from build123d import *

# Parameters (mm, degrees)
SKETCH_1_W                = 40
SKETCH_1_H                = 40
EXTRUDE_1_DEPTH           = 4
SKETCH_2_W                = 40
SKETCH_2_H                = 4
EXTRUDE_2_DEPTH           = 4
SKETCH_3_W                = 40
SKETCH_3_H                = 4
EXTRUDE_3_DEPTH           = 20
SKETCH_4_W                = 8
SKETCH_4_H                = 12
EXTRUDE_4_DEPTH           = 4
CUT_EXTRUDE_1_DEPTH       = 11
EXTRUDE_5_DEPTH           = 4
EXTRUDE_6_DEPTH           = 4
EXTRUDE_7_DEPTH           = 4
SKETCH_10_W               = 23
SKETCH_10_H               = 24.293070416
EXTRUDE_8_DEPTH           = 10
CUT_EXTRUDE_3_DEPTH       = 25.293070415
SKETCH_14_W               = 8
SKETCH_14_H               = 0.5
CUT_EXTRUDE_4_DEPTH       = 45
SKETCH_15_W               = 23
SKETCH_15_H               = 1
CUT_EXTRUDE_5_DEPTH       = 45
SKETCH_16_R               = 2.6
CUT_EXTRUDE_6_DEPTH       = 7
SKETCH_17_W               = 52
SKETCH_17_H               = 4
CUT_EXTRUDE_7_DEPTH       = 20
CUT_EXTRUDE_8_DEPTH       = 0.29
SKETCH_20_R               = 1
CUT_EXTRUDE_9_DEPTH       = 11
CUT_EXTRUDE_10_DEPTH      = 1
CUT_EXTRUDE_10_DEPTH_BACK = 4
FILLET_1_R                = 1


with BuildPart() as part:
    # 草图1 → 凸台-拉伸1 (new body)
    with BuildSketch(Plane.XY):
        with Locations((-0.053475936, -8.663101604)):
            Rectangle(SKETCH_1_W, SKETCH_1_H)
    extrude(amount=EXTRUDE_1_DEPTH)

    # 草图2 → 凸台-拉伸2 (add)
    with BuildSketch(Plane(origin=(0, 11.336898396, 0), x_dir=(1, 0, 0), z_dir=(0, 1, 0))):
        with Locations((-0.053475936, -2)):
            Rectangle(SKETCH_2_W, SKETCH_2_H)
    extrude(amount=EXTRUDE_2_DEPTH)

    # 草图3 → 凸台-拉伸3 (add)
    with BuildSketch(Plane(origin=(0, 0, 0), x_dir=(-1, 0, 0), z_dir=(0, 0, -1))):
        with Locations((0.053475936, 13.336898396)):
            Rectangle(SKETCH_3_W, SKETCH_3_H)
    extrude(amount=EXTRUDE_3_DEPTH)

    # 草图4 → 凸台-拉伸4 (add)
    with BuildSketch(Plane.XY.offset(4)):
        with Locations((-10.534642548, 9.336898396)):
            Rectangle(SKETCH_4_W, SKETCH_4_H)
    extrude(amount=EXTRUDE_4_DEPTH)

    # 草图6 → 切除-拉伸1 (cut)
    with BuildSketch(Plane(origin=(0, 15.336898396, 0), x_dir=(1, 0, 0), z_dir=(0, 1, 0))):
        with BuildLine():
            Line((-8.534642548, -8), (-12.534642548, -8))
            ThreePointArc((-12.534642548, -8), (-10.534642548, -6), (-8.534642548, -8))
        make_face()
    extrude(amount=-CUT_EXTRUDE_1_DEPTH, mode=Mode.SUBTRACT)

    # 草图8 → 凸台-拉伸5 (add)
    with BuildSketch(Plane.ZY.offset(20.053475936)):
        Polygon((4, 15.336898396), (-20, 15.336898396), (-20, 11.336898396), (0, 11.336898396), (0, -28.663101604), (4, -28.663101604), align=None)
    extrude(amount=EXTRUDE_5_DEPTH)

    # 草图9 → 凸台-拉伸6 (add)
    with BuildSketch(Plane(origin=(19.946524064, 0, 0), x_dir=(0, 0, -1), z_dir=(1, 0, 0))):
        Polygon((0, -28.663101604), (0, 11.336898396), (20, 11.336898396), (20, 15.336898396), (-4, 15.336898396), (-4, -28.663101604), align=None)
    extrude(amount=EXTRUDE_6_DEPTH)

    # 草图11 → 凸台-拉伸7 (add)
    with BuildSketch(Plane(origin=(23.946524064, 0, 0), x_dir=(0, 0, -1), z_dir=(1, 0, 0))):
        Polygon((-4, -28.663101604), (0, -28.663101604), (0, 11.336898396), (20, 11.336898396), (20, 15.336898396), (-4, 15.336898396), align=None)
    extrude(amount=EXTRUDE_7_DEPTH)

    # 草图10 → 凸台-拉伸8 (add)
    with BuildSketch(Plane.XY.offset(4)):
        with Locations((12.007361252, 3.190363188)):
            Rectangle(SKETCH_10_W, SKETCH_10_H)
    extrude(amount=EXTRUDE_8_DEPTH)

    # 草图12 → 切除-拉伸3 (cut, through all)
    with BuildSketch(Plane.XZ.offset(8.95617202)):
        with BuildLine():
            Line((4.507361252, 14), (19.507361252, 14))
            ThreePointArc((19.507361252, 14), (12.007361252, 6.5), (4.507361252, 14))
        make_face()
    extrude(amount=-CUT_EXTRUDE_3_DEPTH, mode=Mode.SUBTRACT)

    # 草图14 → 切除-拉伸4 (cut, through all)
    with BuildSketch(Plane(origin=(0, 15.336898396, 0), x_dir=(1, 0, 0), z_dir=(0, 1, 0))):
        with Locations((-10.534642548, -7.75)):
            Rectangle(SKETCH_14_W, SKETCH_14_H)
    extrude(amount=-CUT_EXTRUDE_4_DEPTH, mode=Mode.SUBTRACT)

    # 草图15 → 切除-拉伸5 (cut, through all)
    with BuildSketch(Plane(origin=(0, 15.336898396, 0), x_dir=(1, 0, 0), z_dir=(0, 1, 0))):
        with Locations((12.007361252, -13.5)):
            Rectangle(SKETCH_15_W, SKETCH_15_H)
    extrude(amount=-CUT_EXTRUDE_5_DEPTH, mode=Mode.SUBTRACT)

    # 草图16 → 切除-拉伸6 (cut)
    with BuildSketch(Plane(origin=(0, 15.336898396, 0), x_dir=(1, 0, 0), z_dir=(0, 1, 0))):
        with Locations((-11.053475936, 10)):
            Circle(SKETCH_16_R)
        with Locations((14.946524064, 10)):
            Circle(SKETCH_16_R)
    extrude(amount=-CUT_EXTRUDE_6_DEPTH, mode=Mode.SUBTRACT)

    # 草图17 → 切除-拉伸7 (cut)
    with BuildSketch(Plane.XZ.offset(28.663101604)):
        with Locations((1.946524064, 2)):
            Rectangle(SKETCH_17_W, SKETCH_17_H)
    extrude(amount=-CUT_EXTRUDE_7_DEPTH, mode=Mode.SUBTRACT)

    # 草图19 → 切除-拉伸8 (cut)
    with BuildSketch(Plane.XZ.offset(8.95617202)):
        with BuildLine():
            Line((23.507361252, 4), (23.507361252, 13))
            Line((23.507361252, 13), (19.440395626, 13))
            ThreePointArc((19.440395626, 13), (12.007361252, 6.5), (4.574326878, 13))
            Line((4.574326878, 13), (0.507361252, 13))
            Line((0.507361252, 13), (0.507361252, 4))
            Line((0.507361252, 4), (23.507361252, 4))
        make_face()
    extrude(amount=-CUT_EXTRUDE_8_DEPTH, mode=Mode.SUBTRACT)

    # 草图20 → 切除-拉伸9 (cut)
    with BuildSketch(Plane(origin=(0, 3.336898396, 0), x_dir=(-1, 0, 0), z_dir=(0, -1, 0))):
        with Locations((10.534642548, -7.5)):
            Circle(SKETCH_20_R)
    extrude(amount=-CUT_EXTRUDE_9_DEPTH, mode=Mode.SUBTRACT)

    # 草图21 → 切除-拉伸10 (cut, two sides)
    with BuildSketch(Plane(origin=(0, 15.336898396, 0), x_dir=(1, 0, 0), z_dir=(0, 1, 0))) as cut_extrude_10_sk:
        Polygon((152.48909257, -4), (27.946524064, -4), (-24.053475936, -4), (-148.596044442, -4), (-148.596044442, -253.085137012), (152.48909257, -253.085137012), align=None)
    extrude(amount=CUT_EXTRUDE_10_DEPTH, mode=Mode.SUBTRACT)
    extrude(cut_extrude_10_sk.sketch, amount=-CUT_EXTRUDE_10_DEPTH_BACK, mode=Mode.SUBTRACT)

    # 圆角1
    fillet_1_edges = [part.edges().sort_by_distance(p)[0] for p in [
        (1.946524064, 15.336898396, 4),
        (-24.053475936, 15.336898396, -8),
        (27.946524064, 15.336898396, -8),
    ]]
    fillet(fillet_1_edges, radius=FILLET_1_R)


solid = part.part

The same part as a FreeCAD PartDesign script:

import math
import FreeCAD as App
import Part
import Sketcher
from FreeCAD import Vector


def edges_at(feature, points):
    """Names of the edges that pass closest to the given points."""
    edges = feature.Shape.Edges
    near = lambda p: min(range(len(edges)), key=lambda i: edges[i].distToShape(Part.Vertex(*p))[0])
    return sorted({f"Edge{near(p) + 1}" for p in points})


def add_polygon(sketch, points):
    """Adds a closed chain of lines whose ends are joined by coincident constraints."""
    first, n = sketch.GeometryCount, len(points)
    for a, b in zip(points, points[1:] + points[:1]):
        sketch.addGeometry(Part.LineSegment(App.Vector(*a, 0), App.Vector(*b, 0)), False)
    for i in range(n):
        sketch.addConstraint(Sketcher.Constraint("Coincident", first + i, 2, first + (i + 1) % n, 1))

doc = App.newDocument("Part")
body = doc.addObject("PartDesign::Body", "Body")

# Sketch on XY plane
sketch1 = body.newObject("Sketcher::SketchObject", "Sketch")
sketch1.AttachmentSupport = (doc.getObject("XY_Plane"), [""])
sketch1.MapMode = "FlatFace"
add_polygon(sketch1, [(-20.053476, 11.336898), (-20.053476, -28.663102), (19.946524, -28.663102), (19.946524, 11.336898)])  # lines 0-3
sketch1.addConstraint([
    Sketcher.Constraint("Vertical", 0),
    Sketcher.Constraint("Horizontal", 1),
    Sketcher.Constraint("Vertical", 2),
    Sketcher.Constraint("Horizontal", 3),
    Sketcher.Constraint("Equal", 3, 0),
    Sketcher.Constraint("DistanceX", 1, 1, 1, 2, 40.0),
    Sketcher.Constraint("DistanceY", 0, 2, -1, 1, 28.663102),
    Sketcher.Constraint("DistanceX", 0, 2, -1, 1, 20.053476),
])
pad1 = body.newObject("PartDesign::Pad", "Pad")
pad1.Profile = sketch1
pad1.Length = 4

# Sketch on XZ plane
sketch2 = body.newObject("Sketcher::SketchObject", "Sketch001")
sketch2.AttachmentSupport = (doc.getObject("XZ_Plane"), [""])
sketch2.MapMode = "FlatFace"
sketch2.AttachmentOffset = App.Placement(Vector(0, 0, -11.336898), App.Rotation())
add_polygon(sketch2, [(-20.053476, 0), (-20.053476, 4), (19.946524, 4), (19.946524, 0)])  # lines 0-3
sketch2.addConstraint([
    Sketcher.Constraint("Vertical", 0),
    Sketcher.Constraint("Horizontal", 1),
    Sketcher.Constraint("Vertical", 2),
    Sketcher.Constraint("Horizontal", 3),
    Sketcher.Constraint("PointOnObject", 2, 2, -1),
    Sketcher.Constraint("DistanceX", 1, 1, 1, 2, 40.0),
    Sketcher.Constraint("DistanceY", 0, 1, 0, 2, 4.0),
    Sketcher.Constraint("DistanceX", 0, 2, -1, 1, 20.053476),
])
pad2 = body.newObject("PartDesign::Pad", "Pad001")
pad2.Profile = sketch2
pad2.Length = 4
pad2.Reversed = True

# Sketch on XY plane
sketch3 = body.newObject("Sketcher::SketchObject", "Sketch002")
sketch3.AttachmentSupport = (doc.getObject("XY_Plane"), [""])
sketch3.MapMode = "FlatFace"
add_polygon(sketch3, [(19.946524, 15.336898), (19.946524, 11.336898), (-20.053476, 11.336898), (-20.053476, 15.336898)])  # lines 0-3
sketch3.addConstraint([
    Sketcher.Constraint("Vertical", 0),
    Sketcher.Constraint("Horizontal", 1),
    Sketcher.Constraint("Vertical", 2),
    Sketcher.Constraint("Horizontal", 3),
    Sketcher.Constraint("DistanceX", 1, 2, 1, 1, 40.0),
    Sketcher.Constraint("DistanceY", 0, 2, 0, 1, 4.0),
    Sketcher.Constraint("DistanceY", -1, 1, 0, 2, 11.336898),
    Sketcher.Constraint("DistanceX", -1, 1, 0, 2, 19.946524),
])
pad3 = body.newObject("PartDesign::Pad", "Pad002")
pad3.Profile = sketch3
pad3.Length = 20
pad3.Reversed = True

# Sketch on XY plane
sketch4 = body.newObject("Sketcher::SketchObject", "Sketch003")
sketch4.AttachmentSupport = (doc.getObject("XY_Plane"), [""])
sketch4.MapMode = "FlatFace"
sketch4.AttachmentOffset = App.Placement(Vector(0, 0, 4), App.Rotation())
add_polygon(sketch4, [(-14.534643, 15.336898), (-14.534643, 3.336898), (-6.534643, 3.336898), (-6.534643, 15.336898)])  # lines 0-3
sketch4.addConstraint([
    Sketcher.Constraint("Vertical", 0),
    Sketcher.Constraint("Horizontal", 1),
    Sketcher.Constraint("Vertical", 2),
    Sketcher.Constraint("Horizontal", 3),
    Sketcher.Constraint("DistanceX", 1, 1, 1, 2, 8.0),
    Sketcher.Constraint("DistanceY", 0, 2, 0, 1, 12.0),
    Sketcher.Constraint("DistanceY", -1, 1, 0, 2, 3.336898),
    Sketcher.Constraint("DistanceX", 0, 2, -1, 1, 14.534643),
])
pad4 = body.newObject("PartDesign::Pad", "Pad003")
pad4.Profile = sketch4
pad4.Length = 4

# Sketch on XZ plane
sketch5 = body.newObject("Sketcher::SketchObject", "Sketch004")
sketch5.AttachmentSupport = (doc.getObject("XZ_Plane"), [""])
sketch5.MapMode = "FlatFace"
sketch5.AttachmentOffset = App.Placement(Vector(0, 0, -15.336898), App.Rotation())
sketch5.addGeometry([
    Part.LineSegment(Vector(-12.534643, 8, 0), Vector(-8.534643, 8, 0)),
    Part.ArcOfCircle(Part.Circle(Vector(-10.534643, 8, 0), Vector(0, 0, 1), 2), math.radians(180), math.radians(360)),
], False)
sketch5.addConstraint([
    Sketcher.Constraint("Coincident", 0, 1, 1, 1),
    Sketcher.Constraint("Coincident", 1, 2, 0, 2),
    Sketcher.Constraint("Horizontal", 0),
    Sketcher.Constraint("Horizontal", 1, 3, 0, 1),
    Sketcher.Constraint("Radius", 1, 2.0),
    Sketcher.Constraint("DistanceY", -1, 1, 1, 3, 8.0),
    Sketcher.Constraint("DistanceX", 1, 3, -1, 1, 10.534643),
])
pocket1 = body.newObject("PartDesign::Pocket", "Pocket")
pocket1.Profile = sketch5
pocket1.Length = 11
pocket1.Reversed = True

# Sketch on YZ plane
sketch6 = body.newObject("Sketcher::SketchObject", "Sketch005")
sketch6.AttachmentSupport = (doc.getObject("YZ_Plane"), [""])
sketch6.MapMode = "FlatFace"
sketch6.AttachmentOffset = App.Placement(Vector(0, 0, -20.053476), App.Rotation())
add_polygon(sketch6, [(15.336898, 4), (15.336898, -20), (11.336898, -20), (11.336898, 0), (-28.663102, 0), (-28.663102, 4)])  # lines 0-5
sketch6.addConstraint([
    Sketcher.Constraint("Vertical", 0),
    Sketcher.Constraint("Horizontal", 1),
    Sketcher.Constraint("Vertical", 2),
    Sketcher.Constraint("Horizontal", 3),
    Sketcher.Constraint("Vertical", 4),
    Sketcher.Constraint("Horizontal", 5),
    Sketcher.Constraint("PointOnObject", 2, 2, -1),
    Sketcher.Constraint("Equal", 1, 4),
    Sketcher.Constraint("DistanceX", 1, 2, 1, 1, 4.0),
    Sketcher.Constraint("DistanceX", 3, 2, 3, 1, 40.0),
    Sketcher.Constraint("DistanceY", 0, 2, 0, 1, 24.0),
    Sketcher.Constraint("DistanceX", -1, 1, 0, 2, 15.336898),
])
pad5 = body.newObject("PartDesign::Pad", "Pad004")
pad5.Profile = sketch6
pad5.Length = 4
pad5.Reversed = True

# Sketch on YZ plane
sketch7 = body.newObject("Sketcher::SketchObject", "Sketch006")
sketch7.AttachmentSupport = (doc.getObject("YZ_Plane"), [""])
sketch7.MapMode = "FlatFace"
sketch7.AttachmentOffset = App.Placement(Vector(0, 0, 19.946524), App.Rotation())
add_polygon(sketch7, [(-28.663102, 0), (11.336898, 0), (11.336898, -20), (15.336898, -20), (15.336898, 4), (-28.663102, 4)])  # lines 0-5
sketch7.addConstraint([
    Sketcher.Constraint("Horizontal", 0),
    Sketcher.Constraint("Vertical", 1),
    Sketcher.Constraint("Horizontal", 2),
    Sketcher.Constraint("Vertical", 3),
    Sketcher.Constraint("Horizontal", 4),
    Sketcher.Constraint("Vertical", 5),
    Sketcher.Constraint("PointOnObject", 0, 2, -1),
    Sketcher.Constraint("Equal", 2, 5),
    Sketcher.Constraint("DistanceX", 0, 1, 0, 2, 40.0),
    Sketcher.Constraint("DistanceX", 2, 1, 2, 2, 4.0),
    Sketcher.Constraint("DistanceY", 1, 2, 1, 1, 20.0),
    Sketcher.Constraint("DistanceX", -1, 1, 0, 2, 11.336898),
])
pad6 = body.newObject("PartDesign::Pad", "Pad005")
pad6.Profile = sketch7
pad6.Length = 4

# Sketch on YZ plane
sketch8 = body.newObject("Sketcher::SketchObject", "Sketch007")
sketch8.AttachmentSupport = (doc.getObject("YZ_Plane"), [""])
sketch8.MapMode = "FlatFace"
sketch8.AttachmentOffset = App.Placement(Vector(0, 0, 23.946524), App.Rotation())
add_polygon(sketch8, [(-28.663102, 4), (-28.663102, 0), (11.336898, 0), (11.336898, -20), (15.336898, -20), (15.336898, 4)])  # lines 0-5
sketch8.addConstraint([
    Sketcher.Constraint("Vertical", 0),
    Sketcher.Constraint("Horizontal", 1),
    Sketcher.Constraint("Vertical", 2),
    Sketcher.Constraint("Horizontal", 3),
    Sketcher.Constraint("Vertical", 4),
    Sketcher.Constraint("Horizontal", 5),
    Sketcher.Constraint("PointOnObject", 0, 2, -1),
    Sketcher.Constraint("Equal", 3, 0),
    Sketcher.Constraint("DistanceX", 1, 1, 1, 2, 40.0),
    Sketcher.Constraint("DistanceX", 3, 1, 3, 2, 4.0),
    Sketcher.Constraint("DistanceY", 2, 2, 2, 1, 20.0),
    Sketcher.Constraint("DistanceX", 0, 2, -1, 1, 28.663102),
])
pad7 = body.newObject("PartDesign::Pad", "Pad006")
pad7.Profile = sketch8
pad7.Length = 4

# Sketch on XY plane
sketch9 = body.newObject("Sketcher::SketchObject", "Sketch008")
sketch9.AttachmentSupport = (doc.getObject("XY_Plane"), [""])
sketch9.MapMode = "FlatFace"
sketch9.AttachmentOffset = App.Placement(Vector(0, 0, 4), App.Rotation())
add_polygon(sketch9, [(0.507361, 15.336898), (0.507361, -8.956172), (23.507361, -8.956172), (23.507361, 15.336898)])  # lines 0-3
sketch9.addConstraint([
    Sketcher.Constraint("Vertical", 0),
    Sketcher.Constraint("Horizontal", 1),
    Sketcher.Constraint("Vertical", 2),
    Sketcher.Constraint("Horizontal", 3),
    Sketcher.Constraint("DistanceX", 1, 1, 1, 2, 23.0),
    Sketcher.Constraint("DistanceY", 0, 2, 0, 1, 24.29307),
    Sketcher.Constraint("DistanceY", -1, 1, 2, 2, 15.336898),
    Sketcher.Constraint("DistanceX", -1, 1, 0, 2, 0.507361),
])
pad8 = body.newObject("PartDesign::Pad", "Pad007")
pad8.Profile = sketch9
pad8.Length = 10

# Sketch on XZ plane
sketch10 = body.newObject("Sketcher::SketchObject", "Sketch009")
sketch10.AttachmentSupport = (doc.getObject("XZ_Plane"), [""])
sketch10.MapMode = "FlatFace"
sketch10.AttachmentOffset = App.Placement(Vector(0, 0, 8.956172), App.Rotation())
sketch10.addGeometry([
    Part.LineSegment(Vector(19.507361, 14, 0), Vector(4.507361, 14, 0)),
    Part.ArcOfCircle(Part.Circle(Vector(12.007361, 14, 0), Vector(0, 0, 1), 7.5), math.radians(180), math.radians(360)),
], False)
sketch10.addConstraint([
    Sketcher.Constraint("Coincident", 0, 1, 1, 2),
    Sketcher.Constraint("Coincident", 1, 1, 0, 2),
    Sketcher.Constraint("Horizontal", 0),
    Sketcher.Constraint("Horizontal", 1, 3, 0, 1),
    Sketcher.Constraint("Radius", 1, 7.5),
    Sketcher.Constraint("DistanceY", -1, 1, 1, 3, 14.0),
    Sketcher.Constraint("DistanceX", -1, 1, 1, 3, 12.007361),
])
pocket2 = body.newObject("PartDesign::Pocket", "Pocket001")
pocket2.Profile = sketch10
pocket2.Type = "ThroughAll"

# Sketch on XZ plane
sketch11 = body.newObject("Sketcher::SketchObject", "Sketch010")
sketch11.AttachmentSupport = (doc.getObject("XZ_Plane"), [""])
sketch11.MapMode = "FlatFace"
sketch11.AttachmentOffset = App.Placement(Vector(0, 0, -15.336898), App.Rotation())
add_polygon(sketch11, [(-14.534643, 7.5), (-14.534643, 8), (-6.534643, 8), (-6.534643, 7.5)])  # lines 0-3
sketch11.addConstraint([
    Sketcher.Constraint("Vertical", 0),
    Sketcher.Constraint("Horizontal", 1),
    Sketcher.Constraint("Vertical", 2),
    Sketcher.Constraint("Horizontal", 3),
    Sketcher.Constraint("DistanceX", 1, 1, 1, 2, 8.0),
    Sketcher.Constraint("DistanceY", 0, 1, 0, 2, 0.5),
    Sketcher.Constraint("DistanceY", -1, 1, 0, 2, 8.0),
    Sketcher.Constraint("DistanceX", 0, 2, -1, 1, 14.534643),
])
pocket3 = body.newObject("PartDesign::Pocket", "Pocket002")
pocket3.Profile = sketch11
pocket3.Type = "ThroughAll"
pocket3.Reversed = True

# Sketch on XZ plane
sketch12 = body.newObject("Sketcher::SketchObject", "Sketch011")
sketch12.AttachmentSupport = (doc.getObject("XZ_Plane"), [""])
sketch12.MapMode = "FlatFace"
sketch12.AttachmentOffset = App.Placement(Vector(0, 0, -15.336898), App.Rotation())
add_polygon(sketch12, [(0.507361, 13), (0.507361, 14), (23.507361, 14), (23.507361, 13)])  # lines 0-3
sketch12.addConstraint([
    Sketcher.Constraint("Vertical", 0),
    Sketcher.Constraint("Horizontal", 1),
    Sketcher.Constraint("Vertical", 2),
    Sketcher.Constraint("Horizontal", 3),
    Sketcher.Constraint("DistanceX", 1, 1, 1, 2, 23.0),
    Sketcher.Constraint("DistanceY", 0, 1, 0, 2, 1.0),
    Sketcher.Constraint("DistanceY", -1, 1, 0, 2, 14.0),
    Sketcher.Constraint("DistanceX", -1, 1, 0, 2, 0.507361),
])
pocket4 = body.newObject("PartDesign::Pocket", "Pocket003")
pocket4.Profile = sketch12
pocket4.Type = "ThroughAll"
pocket4.Reversed = True

# Sketch on XZ plane
sketch13 = body.newObject("Sketcher::SketchObject", "Sketch012")
sketch13.AttachmentSupport = (doc.getObject("XZ_Plane"), [""])
sketch13.MapMode = "FlatFace"
sketch13.AttachmentOffset = App.Placement(Vector(0, 0, -15.336898), App.Rotation())
sketch13.addGeometry([
    Part.Circle(Vector(-11.053476, -10, 0), Vector(0, 0, 1), 2.6),
    Part.Circle(Vector(14.946524, -10, 0), Vector(0, 0, 1), 2.6),
], False)
sketch13.addConstraint([
    Sketcher.Constraint("Equal", 0, 1),
    Sketcher.Constraint("Horizontal", 0, 3, 1, 3),
    Sketcher.Constraint("Diameter", 0, 5.2),
    Sketcher.Constraint("DistanceY", 0, 3, -1, 1, 10.0),
    Sketcher.Constraint("DistanceX", 0, 3, 1, 3, 26.0),
    Sketcher.Constraint("DistanceX", 0, 3, -1, 1, 11.053476),
])
pocket5 = body.newObject("PartDesign::Pocket", "Pocket004")
pocket5.Profile = sketch13
pocket5.Length = 7
pocket5.Reversed = True

# Sketch on XZ plane
sketch14 = body.newObject("Sketcher::SketchObject", "Sketch013")
sketch14.AttachmentSupport = (doc.getObject("XZ_Plane"), [""])
sketch14.MapMode = "FlatFace"
sketch14.AttachmentOffset = App.Placement(Vector(0, 0, 28.663102), App.Rotation())
add_polygon(sketch14, [(-24.053476, 4), (-24.053476, 0), (27.946524, 0), (27.946524, 4)])  # lines 0-3
sketch14.addConstraint([
    Sketcher.Constraint("Vertical", 0),
    Sketcher.Constraint("Horizontal", 1),
    Sketcher.Constraint("Vertical", 2),
    Sketcher.Constraint("Horizontal", 3),
    Sketcher.Constraint("PointOnObject", 0, 2, -1),
    Sketcher.Constraint("DistanceX", 1, 1, 1, 2, 52.0),
    Sketcher.Constraint("DistanceY", 0, 2, 0, 1, 4.0),
    Sketcher.Constraint("DistanceX", 0, 2, -1, 1, 24.053476),
])
pocket6 = body.newObject("PartDesign::Pocket", "Pocket005")
pocket6.Profile = sketch14
pocket6.Length = 20

# Sketch on XZ plane
sketch15 = body.newObject("Sketcher::SketchObject", "Sketch014")
sketch15.AttachmentSupport = (doc.getObject("XZ_Plane"), [""])
sketch15.MapMode = "FlatFace"
sketch15.AttachmentOffset = App.Placement(Vector(0, 0, 8.956172), App.Rotation())
sketch15.addGeometry([
    Part.LineSegment(Vector(23.507361, 4, 0), Vector(23.507361, 13, 0)),  # 0
    Part.LineSegment(Vector(23.507361, 13, 0), Vector(19.440396, 13, 0)),  # 1
    Part.ArcOfCircle(Part.Circle(Vector(12.007361, 14, 0), Vector(0, 0, 1), 7.5), math.radians(-172.337744), math.radians(-7.662256)),  # 2
    Part.LineSegment(Vector(4.574327, 13, 0), Vector(0.507361, 13, 0)),  # 3
    Part.LineSegment(Vector(0.507361, 13, 0), Vector(0.507361, 4, 0)),  # 4
    Part.LineSegment(Vector(0.507361, 4, 0), Vector(23.507361, 4, 0)),  # 5
], False)
sketch15.addConstraint([
    Sketcher.Constraint("Coincident", 0, 2, 1, 1),
    Sketcher.Constraint("Coincident", 1, 2, 2, 2),
    Sketcher.Constraint("Coincident", 2, 1, 3, 1),
    Sketcher.Constraint("Coincident", 3, 2, 4, 1),
    Sketcher.Constraint("Coincident", 4, 2, 5, 1),
    Sketcher.Constraint("Coincident", 5, 2, 0, 1),
    Sketcher.Constraint("Vertical", 0),
    Sketcher.Constraint("Horizontal", 1),
    Sketcher.Constraint("Horizontal", 3),
    Sketcher.Constraint("Vertical", 4),
    Sketcher.Constraint("Horizontal", 5),
    Sketcher.Constraint("Horizontal", 1, 2, 2, 1),
    Sketcher.Constraint("Equal", 1, 3),
    Sketcher.Constraint("Radius", 2, 7.5),
    Sketcher.Constraint("DistanceX", 5, 1, 5, 2, 23.0),
    Sketcher.Constraint("DistanceY", 0, 1, 0, 2, 9.0),
    Sketcher.Constraint("DistanceY", -1, 1, 2, 3, 14.0),
    Sketcher.Constraint("DistanceY", -1, 1, 0, 2, 13.0),
    Sketcher.Constraint("DistanceX", -1, 1, 2, 3, 12.007361),
])
pocket7 = body.newObject("PartDesign::Pocket", "Pocket006")
pocket7.Profile = sketch15
pocket7.Length = 0.29

# Sketch on XZ plane
sketch16 = body.newObject("Sketcher::SketchObject", "Sketch015")
sketch16.AttachmentSupport = (doc.getObject("XZ_Plane"), [""])
sketch16.MapMode = "FlatFace"
sketch16.AttachmentOffset = App.Placement(Vector(0, 0, -3.336898), App.Rotation())
sketch16.addGeometry(Part.Circle(Vector(-10.534643, 7.5, 0), Vector(0, 0, 1), 1), False)
sketch16.addConstraint([
    Sketcher.Constraint("Diameter", 0, 2.0),
    Sketcher.Constraint("DistanceY", -1, 1, 0, 3, 7.5),
    Sketcher.Constraint("DistanceX", 0, 3, -1, 1, 10.534643),
])
pocket8 = body.newObject("PartDesign::Pocket", "Pocket007")
pocket8.Profile = sketch16
pocket8.Length = 11

# Sketch on XZ plane
sketch17 = body.newObject("Sketcher::SketchObject", "Sketch016")
sketch17.AttachmentSupport = (doc.getObject("XZ_Plane"), [""])
sketch17.MapMode = "FlatFace"
sketch17.AttachmentOffset = App.Placement(Vector(0, 0, -15.336898), App.Rotation())
add_polygon(sketch17, [(152.489093, 4), (-148.596044, 4), (-148.596044, 253.085137), (152.489093, 253.085137)])  # lines 0-3
sketch17.addConstraint([
    Sketcher.Constraint("Horizontal", 0),
    Sketcher.Constraint("Vertical", 1),
    Sketcher.Constraint("Horizontal", 2),
    Sketcher.Constraint("Vertical", 3),
    Sketcher.Constraint("DistanceY", -1, 1, 0, 2, 4.0),
    Sketcher.Constraint("DistanceX", 0, 2, 0, 1, 301.085137),
    Sketcher.Constraint("DistanceY", 1, 1, 1, 2, 249.085137),
    Sketcher.Constraint("DistanceX", 0, 2, -1, 1, 148.596044),
])
pocket9 = body.newObject("PartDesign::Pocket", "Pocket008")
pocket9.Profile = sketch17
pocket9.Type = "TwoLengths"
pocket9.Length = 1
pocket9.Length2 = 4
doc.recompute()

fillet = body.newObject("PartDesign::Fillet", "Fillet")
fillet.Base = (pocket9, edges_at(pocket9, [(1.947, 15.337, 4), (-24.053, 15.337, -8), (27.947, 15.337, -8)]))
fillet.Radius = 1

doc.recompute()
